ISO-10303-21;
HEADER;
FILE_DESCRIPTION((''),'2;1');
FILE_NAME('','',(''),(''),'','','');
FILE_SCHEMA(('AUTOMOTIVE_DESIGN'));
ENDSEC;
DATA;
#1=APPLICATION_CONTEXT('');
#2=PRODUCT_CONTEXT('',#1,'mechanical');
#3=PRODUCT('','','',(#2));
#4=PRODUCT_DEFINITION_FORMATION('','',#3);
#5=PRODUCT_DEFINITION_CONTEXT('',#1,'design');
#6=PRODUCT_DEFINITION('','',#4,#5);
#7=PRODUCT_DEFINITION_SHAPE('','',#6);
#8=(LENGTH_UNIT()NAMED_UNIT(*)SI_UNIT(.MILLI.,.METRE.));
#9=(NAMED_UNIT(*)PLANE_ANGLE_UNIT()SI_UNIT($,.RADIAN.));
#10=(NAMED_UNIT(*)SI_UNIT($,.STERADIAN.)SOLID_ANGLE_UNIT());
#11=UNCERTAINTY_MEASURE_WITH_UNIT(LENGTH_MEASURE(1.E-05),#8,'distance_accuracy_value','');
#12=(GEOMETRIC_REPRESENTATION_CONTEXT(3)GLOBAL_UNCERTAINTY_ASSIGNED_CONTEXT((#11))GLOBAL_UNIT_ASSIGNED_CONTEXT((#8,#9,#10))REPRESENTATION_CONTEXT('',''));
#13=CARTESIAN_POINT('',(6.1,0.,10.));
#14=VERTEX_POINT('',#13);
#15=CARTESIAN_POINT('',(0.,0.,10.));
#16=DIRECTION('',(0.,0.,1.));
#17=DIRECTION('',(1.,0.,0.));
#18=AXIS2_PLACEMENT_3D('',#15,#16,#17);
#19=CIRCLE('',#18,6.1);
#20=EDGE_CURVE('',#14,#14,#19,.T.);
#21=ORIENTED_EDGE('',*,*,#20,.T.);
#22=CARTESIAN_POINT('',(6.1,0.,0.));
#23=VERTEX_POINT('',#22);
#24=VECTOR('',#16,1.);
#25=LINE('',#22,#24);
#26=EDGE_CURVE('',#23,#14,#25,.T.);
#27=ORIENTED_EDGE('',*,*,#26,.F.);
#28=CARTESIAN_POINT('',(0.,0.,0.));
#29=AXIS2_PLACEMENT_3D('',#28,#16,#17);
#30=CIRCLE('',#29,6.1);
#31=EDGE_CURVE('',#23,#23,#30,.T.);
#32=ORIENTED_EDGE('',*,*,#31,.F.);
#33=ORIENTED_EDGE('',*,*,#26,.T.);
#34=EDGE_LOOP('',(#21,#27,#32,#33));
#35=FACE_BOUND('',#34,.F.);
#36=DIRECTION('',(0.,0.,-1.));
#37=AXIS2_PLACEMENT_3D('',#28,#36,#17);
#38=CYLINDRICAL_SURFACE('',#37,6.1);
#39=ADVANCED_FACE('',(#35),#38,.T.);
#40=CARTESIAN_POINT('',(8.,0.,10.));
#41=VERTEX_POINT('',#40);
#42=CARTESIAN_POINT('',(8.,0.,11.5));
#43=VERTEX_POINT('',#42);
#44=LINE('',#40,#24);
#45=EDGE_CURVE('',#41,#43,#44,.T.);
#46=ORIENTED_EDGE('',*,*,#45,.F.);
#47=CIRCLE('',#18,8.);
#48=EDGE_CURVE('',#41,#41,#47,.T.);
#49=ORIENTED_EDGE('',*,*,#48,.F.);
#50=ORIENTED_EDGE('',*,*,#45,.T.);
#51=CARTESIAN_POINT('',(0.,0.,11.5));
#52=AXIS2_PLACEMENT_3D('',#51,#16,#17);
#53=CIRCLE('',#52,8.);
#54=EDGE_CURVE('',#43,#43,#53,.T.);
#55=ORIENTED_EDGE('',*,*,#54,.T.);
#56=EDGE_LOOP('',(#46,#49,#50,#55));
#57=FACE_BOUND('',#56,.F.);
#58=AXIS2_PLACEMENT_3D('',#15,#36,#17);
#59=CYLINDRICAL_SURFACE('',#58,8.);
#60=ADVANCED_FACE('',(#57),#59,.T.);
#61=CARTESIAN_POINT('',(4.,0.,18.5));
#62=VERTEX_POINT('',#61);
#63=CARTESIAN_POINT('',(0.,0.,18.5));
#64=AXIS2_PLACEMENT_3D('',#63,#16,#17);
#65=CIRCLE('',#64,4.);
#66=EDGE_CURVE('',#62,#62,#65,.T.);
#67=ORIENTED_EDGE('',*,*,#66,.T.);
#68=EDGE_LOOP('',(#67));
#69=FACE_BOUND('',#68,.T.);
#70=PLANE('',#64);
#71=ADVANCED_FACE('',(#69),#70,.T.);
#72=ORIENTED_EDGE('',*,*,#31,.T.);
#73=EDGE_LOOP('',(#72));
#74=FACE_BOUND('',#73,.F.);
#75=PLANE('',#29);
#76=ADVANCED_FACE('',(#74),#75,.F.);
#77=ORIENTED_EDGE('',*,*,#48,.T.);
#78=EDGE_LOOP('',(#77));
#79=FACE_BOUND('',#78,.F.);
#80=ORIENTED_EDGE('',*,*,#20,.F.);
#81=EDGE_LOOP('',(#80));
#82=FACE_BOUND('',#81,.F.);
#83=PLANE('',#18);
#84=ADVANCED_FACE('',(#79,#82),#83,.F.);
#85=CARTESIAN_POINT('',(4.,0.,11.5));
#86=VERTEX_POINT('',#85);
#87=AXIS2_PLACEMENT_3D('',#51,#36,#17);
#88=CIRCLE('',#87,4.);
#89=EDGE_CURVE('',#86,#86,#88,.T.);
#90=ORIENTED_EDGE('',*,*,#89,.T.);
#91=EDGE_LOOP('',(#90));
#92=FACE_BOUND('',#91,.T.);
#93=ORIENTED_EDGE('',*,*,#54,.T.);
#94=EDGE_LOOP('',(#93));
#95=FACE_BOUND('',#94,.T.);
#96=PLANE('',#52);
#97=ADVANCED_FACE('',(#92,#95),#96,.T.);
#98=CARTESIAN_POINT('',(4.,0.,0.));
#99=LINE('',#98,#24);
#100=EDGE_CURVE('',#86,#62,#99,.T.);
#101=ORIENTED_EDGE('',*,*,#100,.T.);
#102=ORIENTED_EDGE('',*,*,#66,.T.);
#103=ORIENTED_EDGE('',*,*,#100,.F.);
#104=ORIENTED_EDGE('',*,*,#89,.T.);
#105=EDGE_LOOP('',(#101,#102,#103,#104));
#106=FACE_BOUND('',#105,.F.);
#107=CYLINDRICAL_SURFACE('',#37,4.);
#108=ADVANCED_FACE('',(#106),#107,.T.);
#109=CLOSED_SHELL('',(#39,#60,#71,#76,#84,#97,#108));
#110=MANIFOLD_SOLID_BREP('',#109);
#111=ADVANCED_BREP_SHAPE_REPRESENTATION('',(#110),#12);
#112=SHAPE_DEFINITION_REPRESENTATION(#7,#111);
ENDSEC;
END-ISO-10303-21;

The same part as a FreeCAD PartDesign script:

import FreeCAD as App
import Part
import Sketcher
Q = App.Units.Quantity

doc = App.newDocument("Part")
params = doc.addObject("Spreadsheet::Sheet", "Params")
for row, (alias, value) in enumerate([
    ("sketch1_diameter", "8 mm"),
    ("sketch1_diameter2", "12.2 mm"),
    ("pad1_length", "10 mm"),
    ("sketch2_diameter", "8 mm"),
    ("pad2_length", "18.5 mm"),
    ("sketch3_diameter", "16 mm"),
    ("pad3_length", "1.5 mm"),
], start=1):
    params.set(f"A{row}", alias)
    params.set(f"B{row}", "=" + value)
    params.setAlias(f"B{row}", alias)

body = doc.addObject("PartDesign::Body", "Body")

# Sketch on XY plane
sketch1 = body.newObject("Sketcher::SketchObject", "Sketch")
sketch1.AttachmentSupport = (doc.getObject("XY_Plane"), [""])
sketch1.MapMode = "FlatFace"
sketch1.addGeometry([
    Part.Circle(App.Vector(0, 0, 0), App.Vector(0, 0, 1), 6.1),
    Part.Circle(App.Vector(0, 0, 0), App.Vector(0, 0, 1), 4),
], False)
sketch1.addConstraint([
    Sketcher.Constraint("Coincident", 0, 3, -1, 1),
    Sketcher.Constraint("Coincident", 1, 3, -1, 1),
    Sketcher.Constraint("Diameter", 1, Q("8 mm")),
    Sketcher.Constraint("Diameter", 0, Q("12.2 mm")),
])
sketch1.setExpression("Constraints[2]", "Params.sketch1_diameter")
sketch1.setExpression("Constraints[3]", "Params.sketch1_diameter2")
pad1 = body.newObject("PartDesign::Pad", "Pad")
pad1.Profile = sketch1
pad1.setExpression("Length", "Params.pad1_length")

# Sketch on XY plane
sketch2 = body.newObject("Sketcher::SketchObject", "Sketch001")
sketch2.AttachmentSupport = (doc.getObject("XY_Plane"), [""])
sketch2.MapMode = "FlatFace"
sketch2.addGeometry(Part.Circle(App.Vector(0, 0, 0), App.Vector(0, 0, 1), 4), False)
sketch2.addConstraint([
    Sketcher.Constraint("Coincident", 0, 3, -1, 1),
    Sketcher.Constraint("Diameter", 0, Q("8 mm")),
])
sketch2.setExpression("Constraints[1]", "Params.sketch2_diameter")
pad2 = body.newObject("PartDesign::Pad", "Pad001")
pad2.Profile = sketch2
pad2.setExpression("Length", "Params.pad2_length")

# Sketch on XY plane
sketch3 = body.newObject("Sketcher::SketchObject", "Sketch002")
sketch3.AttachmentSupport = (doc.getObject("XY_Plane"), [""])
sketch3.MapMode = "FlatFace"
sketch3.AttachmentOffset = App.Placement(App.Vector(0, 0, 10), App.Rotation())
sketch3.addGeometry(Part.Circle(App.Vector(0, 0, 0), App.Vector(0, 0, 1), 8), False)
sketch3.addConstraint([
    Sketcher.Constraint("Coincident", 0, 3, -1, 1),
    Sketcher.Constraint("Diameter", 0, Q("16 mm")),
])
sketch3.setExpression("Constraints[1]", "Params.sketch3_diameter")
pad3 = body.newObject("PartDesign::Pad", "Pad002")
pad3.Profile = sketch3
pad3.setExpression("Length", "Params.pad3_length")

doc.recompute()
